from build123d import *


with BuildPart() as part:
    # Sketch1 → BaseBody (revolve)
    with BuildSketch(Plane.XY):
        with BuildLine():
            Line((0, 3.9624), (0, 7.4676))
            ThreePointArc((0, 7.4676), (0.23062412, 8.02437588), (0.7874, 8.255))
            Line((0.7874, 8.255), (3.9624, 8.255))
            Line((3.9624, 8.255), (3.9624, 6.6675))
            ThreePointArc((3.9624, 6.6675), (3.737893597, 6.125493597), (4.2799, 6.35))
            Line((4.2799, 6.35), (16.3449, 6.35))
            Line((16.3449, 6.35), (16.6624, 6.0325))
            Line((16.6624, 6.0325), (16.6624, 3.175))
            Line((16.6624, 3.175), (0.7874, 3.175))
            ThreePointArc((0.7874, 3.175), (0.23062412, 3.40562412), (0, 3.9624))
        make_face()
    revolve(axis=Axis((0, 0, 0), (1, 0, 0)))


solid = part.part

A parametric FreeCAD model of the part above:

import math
import FreeCAD as App
import Part
import Sketcher
from FreeCAD import Vector
Q = App.Units.Quantity

doc = App.newDocument("Part")
body = doc.addObject("PartDesign::Body", "Body")

# Sketch on XY plane
sketch1 = doc.addObject("Sketcher::SketchObject", "Sketch")
body.addObject(sketch1)
sketch1.AttachmentSupport = (doc.XY_Plane, [""])
sketch1.MapMode = "FlatFace"
sketch1.addGeometry([
    Part.LineSegment(Vector(0, 7.4676, 0), Vector(0, 3.9624, 0)),  # 0
    Part.ArcOfCircle(Part.Circle(Vector(0.7874, 3.9624, 0), Vector(0, 0, 1), 0.7874), math.radians(180), math.radians(270)),  # 1
    Part.LineSegment(Vector(0.7874, 3.175, 0), Vector(16.6624, 3.175, 0)),  # 2
    Part.LineSegment(Vector(16.6624, 3.175, 0), Vector(16.6624, 6.0325, 0)),  # 3
    Part.LineSegment(Vector(16.6624, 6.0325, 0), Vector(16.3449, 6.35, 0)),  # 4
    Part.LineSegment(Vector(16.3449, 6.35, 0), Vector(4.2799, 6.35, 0)),  # 5
    Part.ArcOfCircle(Part.Circle(Vector(3.9624, 6.35, 0), Vector(0, 0, 1), 0.3175), math.radians(90), math.radians(360)),  # 6
    Part.LineSegment(Vector(3.9624, 6.6675, 0), Vector(3.9624, 8.255, 0)),  # 7
    Part.LineSegment(Vector(3.9624, 8.255, 0), Vector(0.7874, 8.255, 0)),  # 8
    Part.ArcOfCircle(Part.Circle(Vector(0.7874, 7.4676, 0), Vector(0, 0, 1), 0.7874), math.radians(90), math.radians(180)),  # 9
], False)
sketch1.addConstraint([
    Sketcher.Constraint("Tangent", 0, 2, 1, 1),
    Sketcher.Constraint("Tangent", 1, 2, 2, 1),
    Sketcher.Constraint("Coincident", 2, 2, 3, 1),
    Sketcher.Constraint("Coincident", 3, 2, 4, 1),
    Sketcher.Constraint("Coincident", 4, 2, 5, 1),
    Sketcher.Constraint("Coincident", 5, 2, 6, 2),
    Sketcher.Constraint("Coincident", 6, 1, 7, 1),
    Sketcher.Constraint("Coincident", 7, 2, 8, 1),
    Sketcher.Constraint("Tangent", 8, 2, 9, 1),
    Sketcher.Constraint("Tangent", 9, 2, 0, 1),
    Sketcher.Constraint("Vertical", 0),
    Sketcher.Constraint("Horizontal", 2),
    Sketcher.Constraint("Vertical", 3),
    Sketcher.Constraint("Horizontal", 5),
    Sketcher.Constraint("Vertical", 7),
    Sketcher.Constraint("Horizontal", 8),
    Sketcher.Constraint("Equal", 1, 9),
    Sketcher.Constraint("PointOnObject", 0, 2, -2),
    Sketcher.Constraint("Horizontal", 6, 3, 4, 2),
    Sketcher.Constraint("Angle", 4, Q("135 deg")),
    Sketcher.Constraint("Radius", 1, Q("0.031 in")),
    Sketcher.Constraint("Radius", 6, Q("0.0125 in")),
    Sketcher.Constraint("DistanceX", 6, 3, 2, 2, Q("0.5 in")),
    Sketcher.Constraint("DistanceX", 2, 1, 2, 2, Q("0.625 in")),
    Sketcher.Constraint("DistanceX", 5, 2, 5, 1, Q("0.475 in")),
    Sketcher.Constraint("DistanceX", 8, 2, 8, 1, Q("0.125 in")),
    Sketcher.Constraint("DistanceY", 0, 2, 0, 1, Q("0.138 in")),
    Sketcher.Constraint("DistanceY", 7, 1, 7, 2, Q("0.0625 in")),
    Sketcher.Constraint("DistanceY", -1, 1, 6, 3, Q("0.25 in")),
])
revolution = doc.addObject("PartDesign::Revolution", "Revolution")
body.addObject(revolution)
revolution.Profile = sketch1
revolution.ReferenceAxis = (sketch1, ["H_Axis"])
revolution.Angle = 360

doc.recompute()
